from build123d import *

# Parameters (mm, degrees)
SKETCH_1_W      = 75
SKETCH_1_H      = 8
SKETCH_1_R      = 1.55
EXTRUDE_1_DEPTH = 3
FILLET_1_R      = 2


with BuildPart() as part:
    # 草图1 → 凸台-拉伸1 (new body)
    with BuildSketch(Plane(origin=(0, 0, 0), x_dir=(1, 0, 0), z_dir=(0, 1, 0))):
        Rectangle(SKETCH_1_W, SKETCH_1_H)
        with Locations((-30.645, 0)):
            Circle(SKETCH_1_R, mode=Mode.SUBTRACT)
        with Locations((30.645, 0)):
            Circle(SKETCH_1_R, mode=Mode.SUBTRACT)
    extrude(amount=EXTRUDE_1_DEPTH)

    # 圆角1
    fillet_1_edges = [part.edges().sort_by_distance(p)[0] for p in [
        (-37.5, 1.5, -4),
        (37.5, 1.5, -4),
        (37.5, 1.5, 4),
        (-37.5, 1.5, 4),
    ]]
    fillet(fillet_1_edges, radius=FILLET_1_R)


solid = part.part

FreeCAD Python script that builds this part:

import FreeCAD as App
import Part
import Sketcher
from FreeCAD import Vector
Q = App.Units.Quantity


def edges_at(feature, points):
    """Names of the edges that pass closest to the given points."""
    edges = feature.Shape.Edges
    near = lambda p: min(range(len(edges)), key=lambda i: edges[i].distToShape(Part.Vertex(*p))[0])
    return sorted({f"Edge{near(p) + 1}" for p in points})


def add_polygon(sketch, points):
    """Adds a closed chain of lines whose ends are joined by coincident constraints."""
    first, n = sketch.GeometryCount, len(points)
    for a, b in zip(points, points[1:] + points[:1]):
        sketch.addGeometry(Part.LineSegment(App.Vector(*a, 0), App.Vector(*b, 0)), False)
    for i in range(n):
        sketch.addConstraint(Sketcher.Constraint("Coincident", first + i, 2, first + (i + 1) % n, 1))

doc = App.newDocument("Part")
body = doc.addObject("PartDesign::Body", "Body")

sketch1 = body.newObject("Sketcher::SketchObject", "Sketch")
sketch1.AttachmentSupport = (doc.getObject("XZ_Plane"), [""])
sketch1.MapMode = "FlatFace"
add_polygon(sketch1, [(-37.5, -4), (-37.5, 4), (37.5, 4), (37.5, -4)])
sketch1.addGeometry(Part.Circle(Vector(-30.6, 0, 0), Vector(0, 0, 1), 1.6), False)
sketch1.addGeometry(Part.Circle(Vector(30.6, 0, 0), Vector(0, 0, 1), 1.6), False)
sketch1.addConstraint([
    Sketcher.Constraint("Vertical", 0),
    Sketcher.Constraint("Horizontal", 1),
    Sketcher.Constraint("Vertical", 2),
    Sketcher.Constraint("Horizontal", 3),
    Sketcher.Constraint("Equal", 4, 5),
    Sketcher.Constraint("Symmetric", 4, 3, 5, 3, -1, 1),
    Sketcher.Constraint("Symmetric", 0, 2, 2, 2, -1, 1),
    Sketcher.Constraint("PointOnObject", 4, 3, -1),
    Sketcher.Constraint("Diameter", 4, Q("3.1 mm")),
    Sketcher.Constraint("DistanceX", 1, 1, 1, 2, Q("75 mm")),
    Sketcher.Constraint("DistanceY", 0, 1, 0, 2, Q("8 mm")),
    Sketcher.Constraint("DistanceX", 4, 3, 5, 3, Q("61.29 mm")),
])
pad1 = body.newObject("PartDesign::Pad", "Pad")
pad1.Profile = sketch1
pad1.Length = 3
pad1.Reversed = True
doc.recompute()

fillet = body.newObject("PartDesign::Fillet", "Fillet")
fillet.Base = (pad1, edges_at(pad1, [
    (-37.5, 1.5, -4),
    (37.5, 1.5, -4),
    (37.5, 1.5, 4),
    (-37.5, 1.5, 4),
]))
fillet.Radius = 2

doc.recompute()
